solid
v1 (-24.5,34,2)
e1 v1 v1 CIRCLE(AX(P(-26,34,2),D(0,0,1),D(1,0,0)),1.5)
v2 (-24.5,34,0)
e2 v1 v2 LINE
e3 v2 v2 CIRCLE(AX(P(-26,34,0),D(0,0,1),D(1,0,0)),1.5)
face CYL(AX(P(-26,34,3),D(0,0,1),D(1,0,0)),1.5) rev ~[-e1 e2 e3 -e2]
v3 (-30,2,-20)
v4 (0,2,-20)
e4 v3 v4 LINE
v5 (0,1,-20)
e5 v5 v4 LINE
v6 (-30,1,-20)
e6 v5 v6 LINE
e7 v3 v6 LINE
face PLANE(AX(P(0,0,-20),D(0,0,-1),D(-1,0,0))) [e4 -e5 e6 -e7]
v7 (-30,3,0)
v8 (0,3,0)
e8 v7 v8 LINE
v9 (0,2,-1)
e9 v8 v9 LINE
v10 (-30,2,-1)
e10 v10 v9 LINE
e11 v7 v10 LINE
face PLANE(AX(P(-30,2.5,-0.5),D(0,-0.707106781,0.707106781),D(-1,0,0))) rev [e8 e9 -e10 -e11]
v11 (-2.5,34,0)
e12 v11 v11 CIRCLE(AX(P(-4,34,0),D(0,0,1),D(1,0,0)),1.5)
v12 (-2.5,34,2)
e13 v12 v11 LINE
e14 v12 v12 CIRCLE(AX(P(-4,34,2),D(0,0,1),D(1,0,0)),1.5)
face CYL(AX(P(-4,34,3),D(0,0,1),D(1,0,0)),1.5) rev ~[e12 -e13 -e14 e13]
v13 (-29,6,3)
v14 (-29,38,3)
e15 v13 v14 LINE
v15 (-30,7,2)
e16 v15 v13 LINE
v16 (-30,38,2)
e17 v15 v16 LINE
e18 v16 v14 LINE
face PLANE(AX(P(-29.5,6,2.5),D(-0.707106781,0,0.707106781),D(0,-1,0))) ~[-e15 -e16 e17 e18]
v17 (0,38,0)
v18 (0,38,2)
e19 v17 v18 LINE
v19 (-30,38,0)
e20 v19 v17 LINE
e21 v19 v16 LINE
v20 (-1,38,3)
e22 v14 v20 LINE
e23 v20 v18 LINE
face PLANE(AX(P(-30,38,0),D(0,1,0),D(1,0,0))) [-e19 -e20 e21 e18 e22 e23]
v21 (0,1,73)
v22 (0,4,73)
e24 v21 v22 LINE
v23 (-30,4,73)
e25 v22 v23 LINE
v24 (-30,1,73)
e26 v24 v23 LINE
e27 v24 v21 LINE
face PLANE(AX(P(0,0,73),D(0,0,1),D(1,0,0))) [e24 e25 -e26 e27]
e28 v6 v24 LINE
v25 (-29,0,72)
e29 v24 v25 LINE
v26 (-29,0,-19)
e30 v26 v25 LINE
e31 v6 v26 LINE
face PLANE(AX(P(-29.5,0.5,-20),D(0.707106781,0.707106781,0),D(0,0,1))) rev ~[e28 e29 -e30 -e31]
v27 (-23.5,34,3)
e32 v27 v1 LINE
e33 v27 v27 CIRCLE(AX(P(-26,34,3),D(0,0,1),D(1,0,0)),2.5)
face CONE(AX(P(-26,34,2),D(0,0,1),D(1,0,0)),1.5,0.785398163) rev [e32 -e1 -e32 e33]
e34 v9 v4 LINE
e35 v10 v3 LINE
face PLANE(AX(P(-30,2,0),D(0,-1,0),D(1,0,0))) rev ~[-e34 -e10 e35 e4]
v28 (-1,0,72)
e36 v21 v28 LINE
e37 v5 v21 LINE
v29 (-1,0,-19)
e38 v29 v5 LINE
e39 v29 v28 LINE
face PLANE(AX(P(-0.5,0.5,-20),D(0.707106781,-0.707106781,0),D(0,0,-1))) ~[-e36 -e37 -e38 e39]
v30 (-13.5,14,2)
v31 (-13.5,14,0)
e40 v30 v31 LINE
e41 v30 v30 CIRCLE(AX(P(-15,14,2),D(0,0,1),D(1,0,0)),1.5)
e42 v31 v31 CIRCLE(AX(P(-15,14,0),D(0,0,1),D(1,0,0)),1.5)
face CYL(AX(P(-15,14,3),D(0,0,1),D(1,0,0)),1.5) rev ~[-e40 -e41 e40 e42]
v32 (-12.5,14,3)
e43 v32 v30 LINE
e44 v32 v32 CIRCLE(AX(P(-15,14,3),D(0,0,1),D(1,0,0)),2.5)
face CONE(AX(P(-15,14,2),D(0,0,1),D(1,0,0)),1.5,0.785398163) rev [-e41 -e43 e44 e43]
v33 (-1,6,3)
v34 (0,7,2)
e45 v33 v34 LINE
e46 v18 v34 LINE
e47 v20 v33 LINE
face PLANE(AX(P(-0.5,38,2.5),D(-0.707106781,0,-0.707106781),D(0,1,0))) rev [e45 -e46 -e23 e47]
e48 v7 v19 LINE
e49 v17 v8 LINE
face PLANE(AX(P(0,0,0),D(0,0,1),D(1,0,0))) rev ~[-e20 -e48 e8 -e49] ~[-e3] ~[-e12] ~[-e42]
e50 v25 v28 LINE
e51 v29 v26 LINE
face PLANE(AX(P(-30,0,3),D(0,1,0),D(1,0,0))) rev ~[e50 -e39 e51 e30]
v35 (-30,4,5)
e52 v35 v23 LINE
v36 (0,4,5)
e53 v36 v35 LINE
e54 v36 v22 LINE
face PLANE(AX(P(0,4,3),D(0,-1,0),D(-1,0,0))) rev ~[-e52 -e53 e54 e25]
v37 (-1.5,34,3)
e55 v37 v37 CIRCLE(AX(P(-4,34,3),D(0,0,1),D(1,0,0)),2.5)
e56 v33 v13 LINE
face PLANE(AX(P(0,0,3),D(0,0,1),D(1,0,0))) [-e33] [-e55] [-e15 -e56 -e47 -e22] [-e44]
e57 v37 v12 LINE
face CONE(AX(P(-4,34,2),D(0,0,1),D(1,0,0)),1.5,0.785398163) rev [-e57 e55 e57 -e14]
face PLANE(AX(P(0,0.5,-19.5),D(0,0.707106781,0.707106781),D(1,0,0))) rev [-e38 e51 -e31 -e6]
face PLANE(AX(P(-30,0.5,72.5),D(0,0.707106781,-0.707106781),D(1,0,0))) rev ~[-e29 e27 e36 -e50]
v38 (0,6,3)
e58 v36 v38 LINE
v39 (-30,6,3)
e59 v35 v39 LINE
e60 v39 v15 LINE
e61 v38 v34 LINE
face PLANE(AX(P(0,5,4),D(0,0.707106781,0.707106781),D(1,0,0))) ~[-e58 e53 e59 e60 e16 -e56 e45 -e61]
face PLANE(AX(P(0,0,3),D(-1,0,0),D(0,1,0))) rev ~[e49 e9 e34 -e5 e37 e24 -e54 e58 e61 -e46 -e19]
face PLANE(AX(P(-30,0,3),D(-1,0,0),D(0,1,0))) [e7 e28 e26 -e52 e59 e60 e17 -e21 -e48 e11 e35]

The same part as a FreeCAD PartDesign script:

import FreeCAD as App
import Part
import Sketcher
from FreeCAD import Vector


def edges_at(feature, points):
    """Names of the edges that pass closest to the given points."""
    edges = feature.Shape.Edges
    near = lambda p: min(range(len(edges)), key=lambda i: edges[i].distToShape(Part.Vertex(*p))[0])
    return sorted({f"Edge{near(p) + 1}" for p in points})

doc = App.newDocument("Part")
params = doc.addObject("Spreadsheet::Sheet", "Params")
for row, (alias, value) in enumerate([
    ("sketch1_width", "30 mm"),
    ("sketch1_height", "38 mm"),
    ("pad1_length", "3 mm"),
    ("sketch2_height", "2 mm"),
    ("sketch2_width", "30 mm"),
    ("pad2_length", "20 mm"),
    ("chamfer_size", "1 mm"),
    ("sketch3_diameter", "3 mm"),
    ("pocket1_length", "20 mm"),
    ("chamfer2_size", "1 mm"),
    ("sketch4_height", "4 mm"),
    ("sketch4_width", "30 mm"),
    ("pad3_length", "70 mm"),
    ("chamfer3_size", "2 mm"),
    ("chamfer4_size", "1 mm"),
], start=1):
    params.set(f"A{row}", alias)
    params.set(f"B{row}", "=" + value)
    params.setAlias(f"B{row}", alias)

body = doc.addObject("PartDesign::Body", "Body")

# Sketch on XY plane
sketch1 = doc.addObject("Sketcher::SketchObject", "Sketch")
body.addObject(sketch1)
sketch1.AttachmentSupport = (doc.XY_Plane, [""])
sketch1.MapMode = "FlatFace"
sketch1.addGeometry([
    Part.LineSegment(Vector(-30, 0, 0), Vector(0, 0, 0)),
    Part.LineSegment(Vector(0, 0, 0), Vector(0, 38, 0)),
    Part.LineSegment(Vector(0, 38, 0), Vector(-30, 38, 0)),
    Part.LineSegment(Vector(-30, 38, 0), Vector(-30, 0, 0)),
], False)
sketch1.addConstraint([
    Sketcher.Constraint("Coincident", 0, 2, 1, 1),
    Sketcher.Constraint("Coincident", 1, 2, 2, 1),
    Sketcher.Constraint("Coincident", 2, 2, 3, 1),
    Sketcher.Constraint("Coincident", 3, 2, 0, 1),
    Sketcher.Constraint("Horizontal", 0),
    Sketcher.Constraint("Vertical", 1),
    Sketcher.Constraint("Horizontal", 2),
    Sketcher.Constraint("Vertical", 3),
    Sketcher.Constraint("Coincident", 0, 2, -1, 1),
    Sketcher.Constraint("DistanceX", 0, 1, 0, 2, 30.0),
    Sketcher.Constraint("DistanceY", 1, 1, 1, 2, 38.0),
])
sketch1.setExpression("Constraints[9]", "Params.sketch1_width")
sketch1.setExpression("Constraints[10]", "Params.sketch1_height")
pad1 = doc.addObject("PartDesign::Pad", "Pad")
body.addObject(pad1)
pad1.Profile = sketch1
pad1.setExpression("Length", "Params.pad1_length")

# Sketch on XY plane
sketch2 = doc.addObject("Sketcher::SketchObject", "Sketch001")
body.addObject(sketch2)
sketch2.AttachmentSupport = (doc.XY_Plane, [""])
sketch2.MapMode = "FlatFace"
sketch2.addGeometry([
    Part.LineSegment(Vector(0, 2, 0), Vector(0, 0, 0)),
    Part.LineSegment(Vector(0, 0, 0), Vector(-30, 0, 0)),
    Part.LineSegment(Vector(-30, 0, 0), Vector(-30, 2, 0)),
    Part.LineSegment(Vector(-30, 2, 0), Vector(0, 2, 0)),
], False)
sketch2.addConstraint([
    Sketcher.Constraint("Coincident", 0, 2, 1, 1),
    Sketcher.Constraint("Coincident", 1, 2, 2, 1),
    Sketcher.Constraint("Coincident", 2, 2, 3, 1),
    Sketcher.Constraint("Coincident", 3, 2, 0, 1),
    Sketcher.Constraint("Vertical", 0),
    Sketcher.Constraint("Horizontal", 1),
    Sketcher.Constraint("Vertical", 2),
    Sketcher.Constraint("Horizontal", 3),
    Sketcher.Constraint("Coincident", 0, 2, -1, 1),
    Sketcher.Constraint("DistanceY", 0, 2, 0, 1, 2.0),
    Sketcher.Constraint("DistanceX", 1, 2, 1, 1, 30.0),
])
sketch2.setExpression("Constraints[9]", "Params.sketch2_height")
sketch2.setExpression("Constraints[10]", "Params.sketch2_width")
pad2 = doc.addObject("PartDesign::Pad", "Pad001")
body.addObject(pad2)
pad2.Profile = sketch2
pad2.setExpression("Length", "Params.pad2_length")
pad2.Reversed = True
doc.recompute()

chamfer = doc.addObject("PartDesign::Chamfer", "Chamfer")
body.addObject(chamfer)
chamfer.Base = (pad2, edges_at(pad2, [(-15, 2, 0)]))
chamfer.setExpression("Size", "Params.chamfer_size")

# Sketch on XY plane
sketch3 = doc.addObject("Sketcher::SketchObject", "Sketch002")
body.addObject(sketch3)
sketch3.AttachmentSupport = (doc.XY_Plane, [""])
sketch3.MapMode = "FlatFace"
sketch3.AttachmentOffset = App.Placement(Vector(0, 0, 3), App.Rotation())
sketch3.addGeometry([
    Part.Circle(Vector(-26, 34, 0), Vector(0, 0, 1), 1.5),
    Part.Circle(Vector(-4, 34, 0), Vector(0, 0, 1), 1.5),
    Part.Circle(Vector(-15, 14, 0), Vector(0, 0, 1), 1.5),
], False)
sketch3.addConstraint([
    Sketcher.Constraint("Equal", 0, 1),
    Sketcher.Constraint("Equal", 1, 2),
    Sketcher.Constraint("Horizontal", 0, 3, 1, 3),
    Sketcher.Constraint("Diameter", 0, 3.0),
    Sketcher.Constraint("DistanceX", 1, 3, -1, 1, 4.0),
    Sketcher.Constraint("DistanceX", 2, 3, -1, 1, 15.0),
    Sketcher.Constraint("DistanceY", -1, 1, 2, 3, 14.0),
    Sketcher.Constraint("DistanceX", 0, 3, -1, 1, 26.0),
    Sketcher.Constraint("DistanceY", -1, 1, 0, 3, 34.0),
])
sketch3.setExpression("Constraints[3]", "Params.sketch3_diameter")
pocket1 = doc.addObject("PartDesign::Pocket", "Pocket")
body.addObject(pocket1)
pocket1.Profile = sketch3
pocket1.setExpression("Length", "Params.pocket1_length")
doc.recompute()

chamfer2 = doc.addObject("PartDesign::Chamfer", "Chamfer001")
body.addObject(chamfer2)
chamfer2.Base = (pocket1, edges_at(pocket1, [(-27.5, 34, 3), (-5.5, 34, 3), (-16.5, 14, 3)]))
chamfer2.setExpression("Size", "Params.chamfer2_size")

# Sketch on XY plane
sketch4 = doc.addObject("Sketcher::SketchObject", "Sketch003")
body.addObject(sketch4)
sketch4.AttachmentSupport = (doc.XY_Plane, [""])
sketch4.MapMode = "FlatFace"
sketch4.AttachmentOffset = App.Placement(Vector(0, 0, 3), App.Rotation())
sketch4.addGeometry([
    Part.LineSegment(Vector(-30, 4, 0), Vector(-30, 0, 0)),
    Part.LineSegment(Vector(-30, 0, 0), Vector(0, 0, 0)),
    Part.LineSegment(Vector(0, 0, 0), Vector(0, 4, 0)),
    Part.LineSegment(Vector(0, 4, 0), Vector(-30, 4, 0)),
], False)
sketch4.addConstraint([
    Sketcher.Constraint("Coincident", 0, 2, 1, 1),
    Sketcher.Constraint("Coincident", 1, 2, 2, 1),
    Sketcher.Constraint("Coincident", 2, 2, 3, 1),
    Sketcher.Constraint("Coincident", 3, 2, 0, 1),
    Sketcher.Constraint("Vertical", 0),
    Sketcher.Constraint("Horizontal", 1),
    Sketcher.Constraint("Vertical", 2),
    Sketcher.Constraint("Horizontal", 3),
    Sketcher.Constraint("Coincident", 1, 2, -1, 1),
    Sketcher.Constraint("DistanceY", 0, 2, 0, 1, 4.0),
    Sketcher.Constraint("DistanceX", 1, 1, 1, 2, 30.0),
])
sketch4.setExpression("Constraints[9]", "Params.sketch4_height")
sketch4.setExpression("Constraints[10]", "Params.sketch4_width")
pad3 = doc.addObject("PartDesign::Pad", "Pad002")
body.addObject(pad3)
pad3.Profile = sketch4
pad3.setExpression("Length", "Params.pad3_length")
doc.recompute()

chamfer3 = doc.addObject("PartDesign::Chamfer", "Chamfer002")
body.addObject(chamfer3)
chamfer3.Base = (pad3, edges_at(pad3, [(-15, 4, 3)]))
chamfer3.setExpression("Size", "Params.chamfer3_size")
doc.recompute()

chamfer4 = doc.addObject("PartDesign::Chamfer", "Chamfer003")
body.addObject(chamfer4)
chamfer4.Base = (chamfer3, edges_at(chamfer3, [
    (-30, 22, 3),
    (0, 22, 3),
    (-30, 0, 26.5),
    (-15, 0, 73),
    (0, 0, 26.5),
    (-15, 0, -20),
]))
chamfer4.setExpression("Size", "Params.chamfer4_size")

doc.recompute()
